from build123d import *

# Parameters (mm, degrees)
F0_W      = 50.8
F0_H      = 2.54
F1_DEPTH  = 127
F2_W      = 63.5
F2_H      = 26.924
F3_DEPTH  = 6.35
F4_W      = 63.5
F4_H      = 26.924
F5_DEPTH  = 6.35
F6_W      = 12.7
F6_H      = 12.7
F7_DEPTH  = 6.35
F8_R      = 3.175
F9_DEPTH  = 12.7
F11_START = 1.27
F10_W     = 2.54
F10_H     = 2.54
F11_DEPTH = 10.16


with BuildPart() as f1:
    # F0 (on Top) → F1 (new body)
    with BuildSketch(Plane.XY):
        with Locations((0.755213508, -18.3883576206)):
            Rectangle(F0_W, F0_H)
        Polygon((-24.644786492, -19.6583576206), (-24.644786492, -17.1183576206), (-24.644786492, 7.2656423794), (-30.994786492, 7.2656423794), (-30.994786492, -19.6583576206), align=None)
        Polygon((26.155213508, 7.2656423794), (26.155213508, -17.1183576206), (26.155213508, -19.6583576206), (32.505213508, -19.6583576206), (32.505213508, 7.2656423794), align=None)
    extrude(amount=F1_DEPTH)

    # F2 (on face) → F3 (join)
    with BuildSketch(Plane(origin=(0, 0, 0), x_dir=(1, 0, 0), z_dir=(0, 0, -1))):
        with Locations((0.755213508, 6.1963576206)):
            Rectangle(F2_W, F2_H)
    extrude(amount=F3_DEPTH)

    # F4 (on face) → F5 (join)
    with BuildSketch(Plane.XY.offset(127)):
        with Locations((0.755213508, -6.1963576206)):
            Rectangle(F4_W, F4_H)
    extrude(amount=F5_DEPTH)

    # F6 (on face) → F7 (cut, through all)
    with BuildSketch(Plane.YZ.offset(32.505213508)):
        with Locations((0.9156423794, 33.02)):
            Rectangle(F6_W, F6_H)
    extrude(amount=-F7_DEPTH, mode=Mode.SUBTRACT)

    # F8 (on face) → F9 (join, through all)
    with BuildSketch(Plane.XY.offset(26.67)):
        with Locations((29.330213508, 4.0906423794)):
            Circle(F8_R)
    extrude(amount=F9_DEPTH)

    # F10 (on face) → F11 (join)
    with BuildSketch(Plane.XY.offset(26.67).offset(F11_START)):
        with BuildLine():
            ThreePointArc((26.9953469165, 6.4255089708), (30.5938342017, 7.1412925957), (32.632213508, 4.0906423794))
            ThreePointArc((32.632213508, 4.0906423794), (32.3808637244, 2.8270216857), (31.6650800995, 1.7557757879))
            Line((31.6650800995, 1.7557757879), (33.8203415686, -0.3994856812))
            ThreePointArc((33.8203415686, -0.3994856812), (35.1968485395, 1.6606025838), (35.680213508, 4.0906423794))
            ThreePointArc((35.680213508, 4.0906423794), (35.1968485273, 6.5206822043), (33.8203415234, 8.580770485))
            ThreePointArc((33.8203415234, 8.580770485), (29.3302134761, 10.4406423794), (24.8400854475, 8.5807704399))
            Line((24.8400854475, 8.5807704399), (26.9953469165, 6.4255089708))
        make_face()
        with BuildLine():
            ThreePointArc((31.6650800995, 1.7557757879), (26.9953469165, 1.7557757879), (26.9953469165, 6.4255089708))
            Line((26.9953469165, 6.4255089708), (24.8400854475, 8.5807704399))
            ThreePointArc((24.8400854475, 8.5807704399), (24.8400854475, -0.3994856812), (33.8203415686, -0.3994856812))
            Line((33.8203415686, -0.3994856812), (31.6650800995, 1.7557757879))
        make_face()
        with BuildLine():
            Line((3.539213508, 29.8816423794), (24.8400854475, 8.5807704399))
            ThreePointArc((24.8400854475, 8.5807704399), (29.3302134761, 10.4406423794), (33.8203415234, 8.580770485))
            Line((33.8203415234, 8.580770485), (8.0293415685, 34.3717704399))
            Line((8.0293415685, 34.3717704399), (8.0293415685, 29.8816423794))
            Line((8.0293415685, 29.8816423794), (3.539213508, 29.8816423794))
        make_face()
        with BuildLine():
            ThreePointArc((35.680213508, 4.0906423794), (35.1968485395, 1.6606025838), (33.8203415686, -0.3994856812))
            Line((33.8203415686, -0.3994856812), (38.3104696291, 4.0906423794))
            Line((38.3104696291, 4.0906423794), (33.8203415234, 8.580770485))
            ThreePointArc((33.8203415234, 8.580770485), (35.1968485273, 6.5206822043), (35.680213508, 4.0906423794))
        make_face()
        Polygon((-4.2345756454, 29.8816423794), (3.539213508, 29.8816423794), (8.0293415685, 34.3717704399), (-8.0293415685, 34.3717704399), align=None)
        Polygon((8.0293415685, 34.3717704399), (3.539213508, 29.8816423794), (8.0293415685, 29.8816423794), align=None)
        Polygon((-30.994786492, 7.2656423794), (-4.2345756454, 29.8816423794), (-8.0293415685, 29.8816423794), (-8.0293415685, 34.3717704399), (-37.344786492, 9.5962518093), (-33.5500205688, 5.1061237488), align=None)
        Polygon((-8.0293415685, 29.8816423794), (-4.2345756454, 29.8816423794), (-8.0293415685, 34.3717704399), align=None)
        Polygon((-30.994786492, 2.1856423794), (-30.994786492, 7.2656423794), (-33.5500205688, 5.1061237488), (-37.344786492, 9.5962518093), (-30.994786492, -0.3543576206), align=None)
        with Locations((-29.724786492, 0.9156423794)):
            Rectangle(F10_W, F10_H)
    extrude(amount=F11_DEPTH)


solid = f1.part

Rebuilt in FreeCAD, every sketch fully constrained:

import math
import FreeCAD as App
import Part
import Sketcher
from FreeCAD import Vector
Q = App.Units.Quantity

doc = App.newDocument("Part")
body = doc.addObject("PartDesign::Body", "Body")

# Sketch on XY plane
sketch1 = doc.addObject("Sketcher::SketchObject", "Sketch")
body.addObject(sketch1)
sketch1.AttachmentSupport = (doc.XY_Plane, [""])
sketch1.MapMode = "FlatFace"
sketch1.addGeometry([
    Part.LineSegment(Vector(26, -17, 0), Vector(-25, -17, 0)),  # 0
    Part.LineSegment(Vector(-25, -17, 0), Vector(-25, 7, 0)),  # 1
    Part.LineSegment(Vector(-25, 7, 0), Vector(-31, 7, 0)),  # 2
    Part.LineSegment(Vector(-31, 7, 0), Vector(-31, -20, 0)),  # 3
    Part.LineSegment(Vector(-31, -20, 0), Vector(33, -20, 0)),  # 4
    Part.LineSegment(Vector(33, -20, 0), Vector(33, 7, 0)),  # 5
    Part.LineSegment(Vector(33, 7, 0), Vector(26, 7, 0)),  # 6
    Part.LineSegment(Vector(26, 7, 0), Vector(26, -17, 0)),  # 7
], False)
sketch1.addConstraint([
    Sketcher.Constraint("Coincident", 0, 2, 1, 1),
    Sketcher.Constraint("Coincident", 1, 2, 2, 1),
    Sketcher.Constraint("Coincident", 2, 2, 3, 1),
    Sketcher.Constraint("Coincident", 3, 2, 4, 1),
    Sketcher.Constraint("Coincident", 4, 2, 5, 1),
    Sketcher.Constraint("Coincident", 5, 2, 6, 1),
    Sketcher.Constraint("Coincident", 6, 2, 7, 1),
    Sketcher.Constraint("Coincident", 7, 2, 0, 1),
    Sketcher.Constraint("Horizontal", 0),
    Sketcher.Constraint("Vertical", 1),
    Sketcher.Constraint("Horizontal", 2),
    Sketcher.Constraint("Vertical", 3),
    Sketcher.Constraint("Horizontal", 4),
    Sketcher.Constraint("Vertical", 5),
    Sketcher.Constraint("Horizontal", 6),
    Sketcher.Constraint("Vertical", 7),
    Sketcher.Constraint("Horizontal", 2, 2, 5, 2),
    Sketcher.Constraint("Equal", 2, 6),
    Sketcher.Constraint("DistanceX", 0, 2, 0, 1, Q("2 in")),
    Sketcher.Constraint("DistanceX", 4, 1, 4, 2, Q("2.5 in")),
    Sketcher.Constraint("DistanceY", 1, 1, 1, 2, Q("0.96 in")),
    Sketcher.Constraint("DistanceY", 3, 2, 3, 1, Q("1.06 in")),
    Sketcher.Constraint("DistanceX", 0, 2, -1, 1, 24.644786),
    Sketcher.Constraint("DistanceY", 0, 2, -1, 1, 17.118358),
])
pad1 = doc.addObject("PartDesign::Pad", "Pad")
body.addObject(pad1)
pad1.Profile = sketch1
pad1.Length = Q("5 in")

# Sketch on XY plane
sketch2 = doc.addObject("Sketcher::SketchObject", "Sketch001")
body.addObject(sketch2)
sketch2.AttachmentSupport = (doc.XY_Plane, [""])
sketch2.MapMode = "FlatFace"
sketch2.addGeometry([
    Part.LineSegment(Vector(-31, -20, 0), Vector(-31, 7, 0)),
    Part.LineSegment(Vector(-31, 7, 0), Vector(33, 7, 0)),
    Part.LineSegment(Vector(33, 7, 0), Vector(33, -20, 0)),
    Part.LineSegment(Vector(33, -20, 0), Vector(-31, -20, 0)),
], False)
sketch2.addConstraint([
    Sketcher.Constraint("Coincident", 0, 2, 1, 1),
    Sketcher.Constraint("Coincident", 1, 2, 2, 1),
    Sketcher.Constraint("Coincident", 2, 2, 3, 1),
    Sketcher.Constraint("Coincident", 3, 2, 0, 1),
    Sketcher.Constraint("Vertical", 0),
    Sketcher.Constraint("Horizontal", 1),
    Sketcher.Constraint("Vertical", 2),
    Sketcher.Constraint("Horizontal", 3),
    Sketcher.Constraint("DistanceX", 1, 1, 1, 2, Q("2.5 in")),
    Sketcher.Constraint("DistanceY", 0, 1, 0, 2, Q("1.06 in")),
    Sketcher.Constraint("DistanceX", 0, 2, -1, 1, 30.994786),
    Sketcher.Constraint("DistanceY", -1, 1, 0, 2, 7.265642),
])
pad2 = doc.addObject("PartDesign::Pad", "Pad001")
body.addObject(pad2)
pad2.Profile = sketch2
pad2.Length = Q("0.25 in")
pad2.Reversed = True

# Sketch on XY plane
sketch3 = doc.addObject("Sketcher::SketchObject", "Sketch002")
body.addObject(sketch3)
sketch3.AttachmentSupport = (doc.XY_Plane, [""])
sketch3.MapMode = "FlatFace"
sketch3.AttachmentOffset = App.Placement(Vector(0, 0, 5 * 25.4), App.Rotation())
sketch3.addGeometry([
    Part.LineSegment(Vector(-31, 7, 0), Vector(-31, -20, 0)),
    Part.LineSegment(Vector(-31, -20, 0), Vector(33, -20, 0)),
    Part.LineSegment(Vector(33, -20, 0), Vector(33, 7, 0)),
    Part.LineSegment(Vector(33, 7, 0), Vector(-31, 7, 0)),
], False)
sketch3.addConstraint([
    Sketcher.Constraint("Coincident", 0, 2, 1, 1),
    Sketcher.Constraint("Coincident", 1, 2, 2, 1),
    Sketcher.Constraint("Coincident", 2, 2, 3, 1),
    Sketcher.Constraint("Coincident", 3, 2, 0, 1),
    Sketcher.Constraint("Vertical", 0),
    Sketcher.Constraint("Horizontal", 1),
    Sketcher.Constraint("Vertical", 2),
    Sketcher.Constraint("Horizontal", 3),
    Sketcher.Constraint("DistanceX", 1, 1, 1, 2, Q("2.5 in")),
    Sketcher.Constraint("DistanceY", 0, 2, 0, 1, Q("1.06 in")),
    Sketcher.Constraint("DistanceX", 0, 2, -1, 1, 30.994786),
    Sketcher.Constraint("DistanceY", 0, 2, -1, 1, 19.658358),
])
pad3 = doc.addObject("PartDesign::Pad", "Pad002")
body.addObject(pad3)
pad3.Profile = sketch3
pad3.Length = Q("0.25 in")

# Sketch on YZ plane
sketch4 = doc.addObject("Sketcher::SketchObject", "Sketch003")
body.addObject(sketch4)
sketch4.AttachmentSupport = (doc.YZ_Plane, [""])
sketch4.MapMode = "FlatFace"
sketch4.AttachmentOffset = App.Placement(Vector(0, 0, 32.505214), App.Rotation())
sketch4.addGeometry([
    Part.LineSegment(Vector(-5, 39, 0), Vector(-5, 27, 0)),
    Part.LineSegment(Vector(-5, 27, 0), Vector(7, 27, 0)),
    Part.LineSegment(Vector(7, 27, 0), Vector(7, 39, 0)),
    Part.LineSegment(Vector(7, 39, 0), Vector(-5, 39, 0)),
], False)
sketch4.addConstraint([
    Sketcher.Constraint("Coincident", 0, 2, 1, 1),
    Sketcher.Constraint("Coincident", 1, 2, 2, 1),
    Sketcher.Constraint("Coincident", 2, 2, 3, 1),
    Sketcher.Constraint("Coincident", 3, 2, 0, 1),
    Sketcher.Constraint("Vertical", 0),
    Sketcher.Constraint("Horizontal", 1),
    Sketcher.Constraint("Vertical", 2),
    Sketcher.Constraint("Horizontal", 3),
    Sketcher.Constraint("Equal", 3, 0),
    Sketcher.Constraint("DistanceX", 1, 1, 1, 2, Q("0.5 in")),
    Sketcher.Constraint("DistanceY", -1, 1, 0, 2, Q("1.05 in")),
    Sketcher.Constraint("DistanceX", 0, 2, -1, 1, 5.434358),
])
pocket1 = doc.addObject("PartDesign::Pocket", "Pocket")
body.addObject(pocket1)
pocket1.Profile = sketch4
pocket1.Length = Q("0.25 in")

# Sketch on XY plane
sketch5 = doc.addObject("Sketcher::SketchObject", "Sketch004")
body.addObject(sketch5)
sketch5.AttachmentSupport = (doc.XY_Plane, [""])
sketch5.MapMode = "FlatFace"
sketch5.AttachmentOffset = App.Placement(Vector(0, 0, 1.05 * 25.4), App.Rotation())
sketch5.addGeometry(Part.Circle(Vector(29.3, 4.1, 0), Vector(0, 0, 1), 3.2), False)
sketch5.addConstraint([
    Sketcher.Constraint("Diameter", 0, Q("0.25 in")),
    Sketcher.Constraint("DistanceX", -1, 1, 0, 3, 29.330214),
    Sketcher.Constraint("DistanceY", -1, 1, 0, 3, 4.090642),
])
pad4 = doc.addObject("PartDesign::Pad", "Pad003")
body.addObject(pad4)
pad4.Profile = sketch5
pad4.Type = "UpToLast"

# Sketch on XY plane
sketch6 = doc.addObject("Sketcher::SketchObject", "Sketch005")
body.addObject(sketch6)
sketch6.AttachmentSupport = (doc.XY_Plane, [""])
sketch6.MapMode = "FlatFace"
sketch6.AttachmentOffset = App.Placement(Vector(0, 0, 1.1 * 25.4), App.Rotation())
sketch6.addGeometry([
    Part.LineSegment(Vector(33.8, 8.6, 0), Vector(8, 34.4, 0)),  # 0
    Part.LineSegment(Vector(8, 34.4, 0), Vector(-8, 34.4, 0)),  # 1
    Part.LineSegment(Vector(-8, 34.4, 0), Vector(-37.3, 9.6, 0)),  # 2
    Part.LineSegment(Vector(-37.3, 9.6, 0), Vector(-31, -0.4, 0)),  # 3
    Part.LineSegment(Vector(-31, -0.4, 0), Vector(-28.5, -0.4, 0)),  # 4
    Part.LineSegment(Vector(-28.5, -0.4, 0), Vector(-28.5, 2.2, 0)),  # 5
    Part.LineSegment(Vector(-28.5, 2.2, 0), Vector(-31, 2.2, 0)),  # 6
    Part.LineSegment(Vector(-31, 2.2, 0), Vector(-31, 7.3, 0)),  # 7
    Part.LineSegment(Vector(-31, 7.3, 0), Vector(-4.2, 29.9, 0)),  # 8
    Part.LineSegment(Vector(-4.2, 29.9, 0), Vector(3.5, 29.9, 0)),  # 9
    Part.LineSegment(Vector(3.5, 29.9, 0), Vector(24.8, 8.6, 0)),  # 10
    Part.ArcOfCircle(Part.Circle(Vector(29.3, 4.1, 0), Vector(0, 0, 1), 6.3), math.radians(135), math.radians(315)),  # 11
    Part.LineSegment(Vector(33.8, -0.4, 0), Vector(38.3, 4.1, 0)),  # 12
    Part.LineSegment(Vector(38.3, 4.1, 0), Vector(33.8, 8.6, 0)),  # 13
    Part.ArcOfCircle(Part.Circle(Vector(29.3, 4.1, 0), Vector(0, 0, 1), 3.3), math.radians(0), math.radians(135)),  # 14
    Part.ArcOfCircle(Part.Circle(Vector(29.3, 4.1, 0), Vector(0, 0, 1), 3.3), math.radians(-45), math.radians(0)),  # 15
    Part.ArcOfCircle(Part.Circle(Vector(29.3, 4.1, 0), Vector(0, 0, 1), 3.3), math.radians(135), math.radians(315)),  # 16
], False)
sketch6.addConstraint([
    Sketcher.Constraint("Coincident", 0, 2, 1, 1),
    Sketcher.Constraint("Coincident", 1, 2, 2, 1),
    Sketcher.Constraint("Coincident", 2, 2, 3, 1),
    Sketcher.Constraint("Coincident", 3, 2, 4, 1),
    Sketcher.Constraint("Coincident", 4, 2, 5, 1),
    Sketcher.Constraint("Coincident", 5, 2, 6, 1),
    Sketcher.Constraint("Coincident", 6, 2, 7, 1),
    Sketcher.Constraint("Coincident", 7, 2, 8, 1),
    Sketcher.Constraint("Coincident", 8, 2, 9, 1),
    Sketcher.Constraint("Coincident", 9, 2, 10, 1),
    Sketcher.Constraint("Coincident", 10, 2, 11, 1),
    Sketcher.Constraint("Tangent", 11, 2, 12, 1),
    Sketcher.Constraint("Coincident", 12, 2, 13, 1),
    Sketcher.Constraint("Coincident", 13, 2, 0, 1),
    Sketcher.Constraint("Tangent", 14, 1, 15, 2),
    Sketcher.Constraint("Tangent", 15, 1, 16, 2),
    Sketcher.Constraint("Tangent", 16, 1, 14, 2),
    Sketcher.Constraint("Horizontal", 1),
    Sketcher.Constraint("Horizontal", 4),
    Sketcher.Constraint("Vertical", 5),
    Sketcher.Constraint("Horizontal", 6),
    Sketcher.Constraint("Vertical", 7),
    Sketcher.Constraint("Horizontal", 9),
    Sketcher.Constraint("Coincident", 14, 3, 11, 3),
    Sketcher.Constraint("Parallel", 2, 8),
    Sketcher.Constraint("Parallel", 0, 10),
    Sketcher.Constraint("Perpendicular", 10, 12),
    Sketcher.Constraint("Perpendicular", 12, 13),
    Sketcher.Constraint("Horizontal", 16, 3, 12, 2),
    Sketcher.Constraint("Horizontal", 10, 2, 13, 2),
    Sketcher.Constraint("Horizontal", 12, 2, 14, 1),
    Sketcher.Constraint("Vertical", 3, 2, 6, 2),
    Sketcher.Constraint("Vertical", 11, 2, 13, 2),
    Sketcher.Constraint("Equal", 6, 5),
    Sketcher.Constraint("Equal", 12, 13),
    Sketcher.Constraint("Radius", 11, Q("0.25 in")),
    Sketcher.Constraint("Radius", 14, Q("0.13 in")),
    Sketcher.Constraint("DistanceX", 4, 1, 4, 2, Q("0.1 in")),
    Sketcher.Constraint("DistanceY", 7, 1, 7, 2, Q("0.2 in")),
    Sketcher.Constraint("DistanceX", 2, 2, 3, 2, Q("0.25 in")),
    Sketcher.Constraint("DistanceX", 2, 2, 11, 3, Q("2.625 in")),
    Sketcher.Constraint("DistanceY", 3, 2, 11, 3, Q("0.175 in")),
    Sketcher.Constraint("DistanceX", 9, 1, 9, 2, 7.773789),
    Sketcher.Constraint("DistanceY", 7, 2, 8, 2, 22.616),
    Sketcher.Constraint("Distance", 0, 36.473982),
    Sketcher.Constraint("Distance", 2, 38.382569),
    Sketcher.Constraint("DistanceX", -1, 1, 0, 2, 8.029342),
    Sketcher.Constraint("DistanceY", -1, 1, 0, 2, 34.37177),
    Sketcher.Constraint("DistanceX", -1, 1, 15, 1, 31.66508),
    Sketcher.Constraint("DistanceY", -1, 1, 16, 1, 6.425509),
])
pad5 = doc.addObject("PartDesign::Pad", "Pad004")
body.addObject(pad5)
pad5.Profile = sketch6
pad5.Length = Q("0.4 in")

doc.recompute()
